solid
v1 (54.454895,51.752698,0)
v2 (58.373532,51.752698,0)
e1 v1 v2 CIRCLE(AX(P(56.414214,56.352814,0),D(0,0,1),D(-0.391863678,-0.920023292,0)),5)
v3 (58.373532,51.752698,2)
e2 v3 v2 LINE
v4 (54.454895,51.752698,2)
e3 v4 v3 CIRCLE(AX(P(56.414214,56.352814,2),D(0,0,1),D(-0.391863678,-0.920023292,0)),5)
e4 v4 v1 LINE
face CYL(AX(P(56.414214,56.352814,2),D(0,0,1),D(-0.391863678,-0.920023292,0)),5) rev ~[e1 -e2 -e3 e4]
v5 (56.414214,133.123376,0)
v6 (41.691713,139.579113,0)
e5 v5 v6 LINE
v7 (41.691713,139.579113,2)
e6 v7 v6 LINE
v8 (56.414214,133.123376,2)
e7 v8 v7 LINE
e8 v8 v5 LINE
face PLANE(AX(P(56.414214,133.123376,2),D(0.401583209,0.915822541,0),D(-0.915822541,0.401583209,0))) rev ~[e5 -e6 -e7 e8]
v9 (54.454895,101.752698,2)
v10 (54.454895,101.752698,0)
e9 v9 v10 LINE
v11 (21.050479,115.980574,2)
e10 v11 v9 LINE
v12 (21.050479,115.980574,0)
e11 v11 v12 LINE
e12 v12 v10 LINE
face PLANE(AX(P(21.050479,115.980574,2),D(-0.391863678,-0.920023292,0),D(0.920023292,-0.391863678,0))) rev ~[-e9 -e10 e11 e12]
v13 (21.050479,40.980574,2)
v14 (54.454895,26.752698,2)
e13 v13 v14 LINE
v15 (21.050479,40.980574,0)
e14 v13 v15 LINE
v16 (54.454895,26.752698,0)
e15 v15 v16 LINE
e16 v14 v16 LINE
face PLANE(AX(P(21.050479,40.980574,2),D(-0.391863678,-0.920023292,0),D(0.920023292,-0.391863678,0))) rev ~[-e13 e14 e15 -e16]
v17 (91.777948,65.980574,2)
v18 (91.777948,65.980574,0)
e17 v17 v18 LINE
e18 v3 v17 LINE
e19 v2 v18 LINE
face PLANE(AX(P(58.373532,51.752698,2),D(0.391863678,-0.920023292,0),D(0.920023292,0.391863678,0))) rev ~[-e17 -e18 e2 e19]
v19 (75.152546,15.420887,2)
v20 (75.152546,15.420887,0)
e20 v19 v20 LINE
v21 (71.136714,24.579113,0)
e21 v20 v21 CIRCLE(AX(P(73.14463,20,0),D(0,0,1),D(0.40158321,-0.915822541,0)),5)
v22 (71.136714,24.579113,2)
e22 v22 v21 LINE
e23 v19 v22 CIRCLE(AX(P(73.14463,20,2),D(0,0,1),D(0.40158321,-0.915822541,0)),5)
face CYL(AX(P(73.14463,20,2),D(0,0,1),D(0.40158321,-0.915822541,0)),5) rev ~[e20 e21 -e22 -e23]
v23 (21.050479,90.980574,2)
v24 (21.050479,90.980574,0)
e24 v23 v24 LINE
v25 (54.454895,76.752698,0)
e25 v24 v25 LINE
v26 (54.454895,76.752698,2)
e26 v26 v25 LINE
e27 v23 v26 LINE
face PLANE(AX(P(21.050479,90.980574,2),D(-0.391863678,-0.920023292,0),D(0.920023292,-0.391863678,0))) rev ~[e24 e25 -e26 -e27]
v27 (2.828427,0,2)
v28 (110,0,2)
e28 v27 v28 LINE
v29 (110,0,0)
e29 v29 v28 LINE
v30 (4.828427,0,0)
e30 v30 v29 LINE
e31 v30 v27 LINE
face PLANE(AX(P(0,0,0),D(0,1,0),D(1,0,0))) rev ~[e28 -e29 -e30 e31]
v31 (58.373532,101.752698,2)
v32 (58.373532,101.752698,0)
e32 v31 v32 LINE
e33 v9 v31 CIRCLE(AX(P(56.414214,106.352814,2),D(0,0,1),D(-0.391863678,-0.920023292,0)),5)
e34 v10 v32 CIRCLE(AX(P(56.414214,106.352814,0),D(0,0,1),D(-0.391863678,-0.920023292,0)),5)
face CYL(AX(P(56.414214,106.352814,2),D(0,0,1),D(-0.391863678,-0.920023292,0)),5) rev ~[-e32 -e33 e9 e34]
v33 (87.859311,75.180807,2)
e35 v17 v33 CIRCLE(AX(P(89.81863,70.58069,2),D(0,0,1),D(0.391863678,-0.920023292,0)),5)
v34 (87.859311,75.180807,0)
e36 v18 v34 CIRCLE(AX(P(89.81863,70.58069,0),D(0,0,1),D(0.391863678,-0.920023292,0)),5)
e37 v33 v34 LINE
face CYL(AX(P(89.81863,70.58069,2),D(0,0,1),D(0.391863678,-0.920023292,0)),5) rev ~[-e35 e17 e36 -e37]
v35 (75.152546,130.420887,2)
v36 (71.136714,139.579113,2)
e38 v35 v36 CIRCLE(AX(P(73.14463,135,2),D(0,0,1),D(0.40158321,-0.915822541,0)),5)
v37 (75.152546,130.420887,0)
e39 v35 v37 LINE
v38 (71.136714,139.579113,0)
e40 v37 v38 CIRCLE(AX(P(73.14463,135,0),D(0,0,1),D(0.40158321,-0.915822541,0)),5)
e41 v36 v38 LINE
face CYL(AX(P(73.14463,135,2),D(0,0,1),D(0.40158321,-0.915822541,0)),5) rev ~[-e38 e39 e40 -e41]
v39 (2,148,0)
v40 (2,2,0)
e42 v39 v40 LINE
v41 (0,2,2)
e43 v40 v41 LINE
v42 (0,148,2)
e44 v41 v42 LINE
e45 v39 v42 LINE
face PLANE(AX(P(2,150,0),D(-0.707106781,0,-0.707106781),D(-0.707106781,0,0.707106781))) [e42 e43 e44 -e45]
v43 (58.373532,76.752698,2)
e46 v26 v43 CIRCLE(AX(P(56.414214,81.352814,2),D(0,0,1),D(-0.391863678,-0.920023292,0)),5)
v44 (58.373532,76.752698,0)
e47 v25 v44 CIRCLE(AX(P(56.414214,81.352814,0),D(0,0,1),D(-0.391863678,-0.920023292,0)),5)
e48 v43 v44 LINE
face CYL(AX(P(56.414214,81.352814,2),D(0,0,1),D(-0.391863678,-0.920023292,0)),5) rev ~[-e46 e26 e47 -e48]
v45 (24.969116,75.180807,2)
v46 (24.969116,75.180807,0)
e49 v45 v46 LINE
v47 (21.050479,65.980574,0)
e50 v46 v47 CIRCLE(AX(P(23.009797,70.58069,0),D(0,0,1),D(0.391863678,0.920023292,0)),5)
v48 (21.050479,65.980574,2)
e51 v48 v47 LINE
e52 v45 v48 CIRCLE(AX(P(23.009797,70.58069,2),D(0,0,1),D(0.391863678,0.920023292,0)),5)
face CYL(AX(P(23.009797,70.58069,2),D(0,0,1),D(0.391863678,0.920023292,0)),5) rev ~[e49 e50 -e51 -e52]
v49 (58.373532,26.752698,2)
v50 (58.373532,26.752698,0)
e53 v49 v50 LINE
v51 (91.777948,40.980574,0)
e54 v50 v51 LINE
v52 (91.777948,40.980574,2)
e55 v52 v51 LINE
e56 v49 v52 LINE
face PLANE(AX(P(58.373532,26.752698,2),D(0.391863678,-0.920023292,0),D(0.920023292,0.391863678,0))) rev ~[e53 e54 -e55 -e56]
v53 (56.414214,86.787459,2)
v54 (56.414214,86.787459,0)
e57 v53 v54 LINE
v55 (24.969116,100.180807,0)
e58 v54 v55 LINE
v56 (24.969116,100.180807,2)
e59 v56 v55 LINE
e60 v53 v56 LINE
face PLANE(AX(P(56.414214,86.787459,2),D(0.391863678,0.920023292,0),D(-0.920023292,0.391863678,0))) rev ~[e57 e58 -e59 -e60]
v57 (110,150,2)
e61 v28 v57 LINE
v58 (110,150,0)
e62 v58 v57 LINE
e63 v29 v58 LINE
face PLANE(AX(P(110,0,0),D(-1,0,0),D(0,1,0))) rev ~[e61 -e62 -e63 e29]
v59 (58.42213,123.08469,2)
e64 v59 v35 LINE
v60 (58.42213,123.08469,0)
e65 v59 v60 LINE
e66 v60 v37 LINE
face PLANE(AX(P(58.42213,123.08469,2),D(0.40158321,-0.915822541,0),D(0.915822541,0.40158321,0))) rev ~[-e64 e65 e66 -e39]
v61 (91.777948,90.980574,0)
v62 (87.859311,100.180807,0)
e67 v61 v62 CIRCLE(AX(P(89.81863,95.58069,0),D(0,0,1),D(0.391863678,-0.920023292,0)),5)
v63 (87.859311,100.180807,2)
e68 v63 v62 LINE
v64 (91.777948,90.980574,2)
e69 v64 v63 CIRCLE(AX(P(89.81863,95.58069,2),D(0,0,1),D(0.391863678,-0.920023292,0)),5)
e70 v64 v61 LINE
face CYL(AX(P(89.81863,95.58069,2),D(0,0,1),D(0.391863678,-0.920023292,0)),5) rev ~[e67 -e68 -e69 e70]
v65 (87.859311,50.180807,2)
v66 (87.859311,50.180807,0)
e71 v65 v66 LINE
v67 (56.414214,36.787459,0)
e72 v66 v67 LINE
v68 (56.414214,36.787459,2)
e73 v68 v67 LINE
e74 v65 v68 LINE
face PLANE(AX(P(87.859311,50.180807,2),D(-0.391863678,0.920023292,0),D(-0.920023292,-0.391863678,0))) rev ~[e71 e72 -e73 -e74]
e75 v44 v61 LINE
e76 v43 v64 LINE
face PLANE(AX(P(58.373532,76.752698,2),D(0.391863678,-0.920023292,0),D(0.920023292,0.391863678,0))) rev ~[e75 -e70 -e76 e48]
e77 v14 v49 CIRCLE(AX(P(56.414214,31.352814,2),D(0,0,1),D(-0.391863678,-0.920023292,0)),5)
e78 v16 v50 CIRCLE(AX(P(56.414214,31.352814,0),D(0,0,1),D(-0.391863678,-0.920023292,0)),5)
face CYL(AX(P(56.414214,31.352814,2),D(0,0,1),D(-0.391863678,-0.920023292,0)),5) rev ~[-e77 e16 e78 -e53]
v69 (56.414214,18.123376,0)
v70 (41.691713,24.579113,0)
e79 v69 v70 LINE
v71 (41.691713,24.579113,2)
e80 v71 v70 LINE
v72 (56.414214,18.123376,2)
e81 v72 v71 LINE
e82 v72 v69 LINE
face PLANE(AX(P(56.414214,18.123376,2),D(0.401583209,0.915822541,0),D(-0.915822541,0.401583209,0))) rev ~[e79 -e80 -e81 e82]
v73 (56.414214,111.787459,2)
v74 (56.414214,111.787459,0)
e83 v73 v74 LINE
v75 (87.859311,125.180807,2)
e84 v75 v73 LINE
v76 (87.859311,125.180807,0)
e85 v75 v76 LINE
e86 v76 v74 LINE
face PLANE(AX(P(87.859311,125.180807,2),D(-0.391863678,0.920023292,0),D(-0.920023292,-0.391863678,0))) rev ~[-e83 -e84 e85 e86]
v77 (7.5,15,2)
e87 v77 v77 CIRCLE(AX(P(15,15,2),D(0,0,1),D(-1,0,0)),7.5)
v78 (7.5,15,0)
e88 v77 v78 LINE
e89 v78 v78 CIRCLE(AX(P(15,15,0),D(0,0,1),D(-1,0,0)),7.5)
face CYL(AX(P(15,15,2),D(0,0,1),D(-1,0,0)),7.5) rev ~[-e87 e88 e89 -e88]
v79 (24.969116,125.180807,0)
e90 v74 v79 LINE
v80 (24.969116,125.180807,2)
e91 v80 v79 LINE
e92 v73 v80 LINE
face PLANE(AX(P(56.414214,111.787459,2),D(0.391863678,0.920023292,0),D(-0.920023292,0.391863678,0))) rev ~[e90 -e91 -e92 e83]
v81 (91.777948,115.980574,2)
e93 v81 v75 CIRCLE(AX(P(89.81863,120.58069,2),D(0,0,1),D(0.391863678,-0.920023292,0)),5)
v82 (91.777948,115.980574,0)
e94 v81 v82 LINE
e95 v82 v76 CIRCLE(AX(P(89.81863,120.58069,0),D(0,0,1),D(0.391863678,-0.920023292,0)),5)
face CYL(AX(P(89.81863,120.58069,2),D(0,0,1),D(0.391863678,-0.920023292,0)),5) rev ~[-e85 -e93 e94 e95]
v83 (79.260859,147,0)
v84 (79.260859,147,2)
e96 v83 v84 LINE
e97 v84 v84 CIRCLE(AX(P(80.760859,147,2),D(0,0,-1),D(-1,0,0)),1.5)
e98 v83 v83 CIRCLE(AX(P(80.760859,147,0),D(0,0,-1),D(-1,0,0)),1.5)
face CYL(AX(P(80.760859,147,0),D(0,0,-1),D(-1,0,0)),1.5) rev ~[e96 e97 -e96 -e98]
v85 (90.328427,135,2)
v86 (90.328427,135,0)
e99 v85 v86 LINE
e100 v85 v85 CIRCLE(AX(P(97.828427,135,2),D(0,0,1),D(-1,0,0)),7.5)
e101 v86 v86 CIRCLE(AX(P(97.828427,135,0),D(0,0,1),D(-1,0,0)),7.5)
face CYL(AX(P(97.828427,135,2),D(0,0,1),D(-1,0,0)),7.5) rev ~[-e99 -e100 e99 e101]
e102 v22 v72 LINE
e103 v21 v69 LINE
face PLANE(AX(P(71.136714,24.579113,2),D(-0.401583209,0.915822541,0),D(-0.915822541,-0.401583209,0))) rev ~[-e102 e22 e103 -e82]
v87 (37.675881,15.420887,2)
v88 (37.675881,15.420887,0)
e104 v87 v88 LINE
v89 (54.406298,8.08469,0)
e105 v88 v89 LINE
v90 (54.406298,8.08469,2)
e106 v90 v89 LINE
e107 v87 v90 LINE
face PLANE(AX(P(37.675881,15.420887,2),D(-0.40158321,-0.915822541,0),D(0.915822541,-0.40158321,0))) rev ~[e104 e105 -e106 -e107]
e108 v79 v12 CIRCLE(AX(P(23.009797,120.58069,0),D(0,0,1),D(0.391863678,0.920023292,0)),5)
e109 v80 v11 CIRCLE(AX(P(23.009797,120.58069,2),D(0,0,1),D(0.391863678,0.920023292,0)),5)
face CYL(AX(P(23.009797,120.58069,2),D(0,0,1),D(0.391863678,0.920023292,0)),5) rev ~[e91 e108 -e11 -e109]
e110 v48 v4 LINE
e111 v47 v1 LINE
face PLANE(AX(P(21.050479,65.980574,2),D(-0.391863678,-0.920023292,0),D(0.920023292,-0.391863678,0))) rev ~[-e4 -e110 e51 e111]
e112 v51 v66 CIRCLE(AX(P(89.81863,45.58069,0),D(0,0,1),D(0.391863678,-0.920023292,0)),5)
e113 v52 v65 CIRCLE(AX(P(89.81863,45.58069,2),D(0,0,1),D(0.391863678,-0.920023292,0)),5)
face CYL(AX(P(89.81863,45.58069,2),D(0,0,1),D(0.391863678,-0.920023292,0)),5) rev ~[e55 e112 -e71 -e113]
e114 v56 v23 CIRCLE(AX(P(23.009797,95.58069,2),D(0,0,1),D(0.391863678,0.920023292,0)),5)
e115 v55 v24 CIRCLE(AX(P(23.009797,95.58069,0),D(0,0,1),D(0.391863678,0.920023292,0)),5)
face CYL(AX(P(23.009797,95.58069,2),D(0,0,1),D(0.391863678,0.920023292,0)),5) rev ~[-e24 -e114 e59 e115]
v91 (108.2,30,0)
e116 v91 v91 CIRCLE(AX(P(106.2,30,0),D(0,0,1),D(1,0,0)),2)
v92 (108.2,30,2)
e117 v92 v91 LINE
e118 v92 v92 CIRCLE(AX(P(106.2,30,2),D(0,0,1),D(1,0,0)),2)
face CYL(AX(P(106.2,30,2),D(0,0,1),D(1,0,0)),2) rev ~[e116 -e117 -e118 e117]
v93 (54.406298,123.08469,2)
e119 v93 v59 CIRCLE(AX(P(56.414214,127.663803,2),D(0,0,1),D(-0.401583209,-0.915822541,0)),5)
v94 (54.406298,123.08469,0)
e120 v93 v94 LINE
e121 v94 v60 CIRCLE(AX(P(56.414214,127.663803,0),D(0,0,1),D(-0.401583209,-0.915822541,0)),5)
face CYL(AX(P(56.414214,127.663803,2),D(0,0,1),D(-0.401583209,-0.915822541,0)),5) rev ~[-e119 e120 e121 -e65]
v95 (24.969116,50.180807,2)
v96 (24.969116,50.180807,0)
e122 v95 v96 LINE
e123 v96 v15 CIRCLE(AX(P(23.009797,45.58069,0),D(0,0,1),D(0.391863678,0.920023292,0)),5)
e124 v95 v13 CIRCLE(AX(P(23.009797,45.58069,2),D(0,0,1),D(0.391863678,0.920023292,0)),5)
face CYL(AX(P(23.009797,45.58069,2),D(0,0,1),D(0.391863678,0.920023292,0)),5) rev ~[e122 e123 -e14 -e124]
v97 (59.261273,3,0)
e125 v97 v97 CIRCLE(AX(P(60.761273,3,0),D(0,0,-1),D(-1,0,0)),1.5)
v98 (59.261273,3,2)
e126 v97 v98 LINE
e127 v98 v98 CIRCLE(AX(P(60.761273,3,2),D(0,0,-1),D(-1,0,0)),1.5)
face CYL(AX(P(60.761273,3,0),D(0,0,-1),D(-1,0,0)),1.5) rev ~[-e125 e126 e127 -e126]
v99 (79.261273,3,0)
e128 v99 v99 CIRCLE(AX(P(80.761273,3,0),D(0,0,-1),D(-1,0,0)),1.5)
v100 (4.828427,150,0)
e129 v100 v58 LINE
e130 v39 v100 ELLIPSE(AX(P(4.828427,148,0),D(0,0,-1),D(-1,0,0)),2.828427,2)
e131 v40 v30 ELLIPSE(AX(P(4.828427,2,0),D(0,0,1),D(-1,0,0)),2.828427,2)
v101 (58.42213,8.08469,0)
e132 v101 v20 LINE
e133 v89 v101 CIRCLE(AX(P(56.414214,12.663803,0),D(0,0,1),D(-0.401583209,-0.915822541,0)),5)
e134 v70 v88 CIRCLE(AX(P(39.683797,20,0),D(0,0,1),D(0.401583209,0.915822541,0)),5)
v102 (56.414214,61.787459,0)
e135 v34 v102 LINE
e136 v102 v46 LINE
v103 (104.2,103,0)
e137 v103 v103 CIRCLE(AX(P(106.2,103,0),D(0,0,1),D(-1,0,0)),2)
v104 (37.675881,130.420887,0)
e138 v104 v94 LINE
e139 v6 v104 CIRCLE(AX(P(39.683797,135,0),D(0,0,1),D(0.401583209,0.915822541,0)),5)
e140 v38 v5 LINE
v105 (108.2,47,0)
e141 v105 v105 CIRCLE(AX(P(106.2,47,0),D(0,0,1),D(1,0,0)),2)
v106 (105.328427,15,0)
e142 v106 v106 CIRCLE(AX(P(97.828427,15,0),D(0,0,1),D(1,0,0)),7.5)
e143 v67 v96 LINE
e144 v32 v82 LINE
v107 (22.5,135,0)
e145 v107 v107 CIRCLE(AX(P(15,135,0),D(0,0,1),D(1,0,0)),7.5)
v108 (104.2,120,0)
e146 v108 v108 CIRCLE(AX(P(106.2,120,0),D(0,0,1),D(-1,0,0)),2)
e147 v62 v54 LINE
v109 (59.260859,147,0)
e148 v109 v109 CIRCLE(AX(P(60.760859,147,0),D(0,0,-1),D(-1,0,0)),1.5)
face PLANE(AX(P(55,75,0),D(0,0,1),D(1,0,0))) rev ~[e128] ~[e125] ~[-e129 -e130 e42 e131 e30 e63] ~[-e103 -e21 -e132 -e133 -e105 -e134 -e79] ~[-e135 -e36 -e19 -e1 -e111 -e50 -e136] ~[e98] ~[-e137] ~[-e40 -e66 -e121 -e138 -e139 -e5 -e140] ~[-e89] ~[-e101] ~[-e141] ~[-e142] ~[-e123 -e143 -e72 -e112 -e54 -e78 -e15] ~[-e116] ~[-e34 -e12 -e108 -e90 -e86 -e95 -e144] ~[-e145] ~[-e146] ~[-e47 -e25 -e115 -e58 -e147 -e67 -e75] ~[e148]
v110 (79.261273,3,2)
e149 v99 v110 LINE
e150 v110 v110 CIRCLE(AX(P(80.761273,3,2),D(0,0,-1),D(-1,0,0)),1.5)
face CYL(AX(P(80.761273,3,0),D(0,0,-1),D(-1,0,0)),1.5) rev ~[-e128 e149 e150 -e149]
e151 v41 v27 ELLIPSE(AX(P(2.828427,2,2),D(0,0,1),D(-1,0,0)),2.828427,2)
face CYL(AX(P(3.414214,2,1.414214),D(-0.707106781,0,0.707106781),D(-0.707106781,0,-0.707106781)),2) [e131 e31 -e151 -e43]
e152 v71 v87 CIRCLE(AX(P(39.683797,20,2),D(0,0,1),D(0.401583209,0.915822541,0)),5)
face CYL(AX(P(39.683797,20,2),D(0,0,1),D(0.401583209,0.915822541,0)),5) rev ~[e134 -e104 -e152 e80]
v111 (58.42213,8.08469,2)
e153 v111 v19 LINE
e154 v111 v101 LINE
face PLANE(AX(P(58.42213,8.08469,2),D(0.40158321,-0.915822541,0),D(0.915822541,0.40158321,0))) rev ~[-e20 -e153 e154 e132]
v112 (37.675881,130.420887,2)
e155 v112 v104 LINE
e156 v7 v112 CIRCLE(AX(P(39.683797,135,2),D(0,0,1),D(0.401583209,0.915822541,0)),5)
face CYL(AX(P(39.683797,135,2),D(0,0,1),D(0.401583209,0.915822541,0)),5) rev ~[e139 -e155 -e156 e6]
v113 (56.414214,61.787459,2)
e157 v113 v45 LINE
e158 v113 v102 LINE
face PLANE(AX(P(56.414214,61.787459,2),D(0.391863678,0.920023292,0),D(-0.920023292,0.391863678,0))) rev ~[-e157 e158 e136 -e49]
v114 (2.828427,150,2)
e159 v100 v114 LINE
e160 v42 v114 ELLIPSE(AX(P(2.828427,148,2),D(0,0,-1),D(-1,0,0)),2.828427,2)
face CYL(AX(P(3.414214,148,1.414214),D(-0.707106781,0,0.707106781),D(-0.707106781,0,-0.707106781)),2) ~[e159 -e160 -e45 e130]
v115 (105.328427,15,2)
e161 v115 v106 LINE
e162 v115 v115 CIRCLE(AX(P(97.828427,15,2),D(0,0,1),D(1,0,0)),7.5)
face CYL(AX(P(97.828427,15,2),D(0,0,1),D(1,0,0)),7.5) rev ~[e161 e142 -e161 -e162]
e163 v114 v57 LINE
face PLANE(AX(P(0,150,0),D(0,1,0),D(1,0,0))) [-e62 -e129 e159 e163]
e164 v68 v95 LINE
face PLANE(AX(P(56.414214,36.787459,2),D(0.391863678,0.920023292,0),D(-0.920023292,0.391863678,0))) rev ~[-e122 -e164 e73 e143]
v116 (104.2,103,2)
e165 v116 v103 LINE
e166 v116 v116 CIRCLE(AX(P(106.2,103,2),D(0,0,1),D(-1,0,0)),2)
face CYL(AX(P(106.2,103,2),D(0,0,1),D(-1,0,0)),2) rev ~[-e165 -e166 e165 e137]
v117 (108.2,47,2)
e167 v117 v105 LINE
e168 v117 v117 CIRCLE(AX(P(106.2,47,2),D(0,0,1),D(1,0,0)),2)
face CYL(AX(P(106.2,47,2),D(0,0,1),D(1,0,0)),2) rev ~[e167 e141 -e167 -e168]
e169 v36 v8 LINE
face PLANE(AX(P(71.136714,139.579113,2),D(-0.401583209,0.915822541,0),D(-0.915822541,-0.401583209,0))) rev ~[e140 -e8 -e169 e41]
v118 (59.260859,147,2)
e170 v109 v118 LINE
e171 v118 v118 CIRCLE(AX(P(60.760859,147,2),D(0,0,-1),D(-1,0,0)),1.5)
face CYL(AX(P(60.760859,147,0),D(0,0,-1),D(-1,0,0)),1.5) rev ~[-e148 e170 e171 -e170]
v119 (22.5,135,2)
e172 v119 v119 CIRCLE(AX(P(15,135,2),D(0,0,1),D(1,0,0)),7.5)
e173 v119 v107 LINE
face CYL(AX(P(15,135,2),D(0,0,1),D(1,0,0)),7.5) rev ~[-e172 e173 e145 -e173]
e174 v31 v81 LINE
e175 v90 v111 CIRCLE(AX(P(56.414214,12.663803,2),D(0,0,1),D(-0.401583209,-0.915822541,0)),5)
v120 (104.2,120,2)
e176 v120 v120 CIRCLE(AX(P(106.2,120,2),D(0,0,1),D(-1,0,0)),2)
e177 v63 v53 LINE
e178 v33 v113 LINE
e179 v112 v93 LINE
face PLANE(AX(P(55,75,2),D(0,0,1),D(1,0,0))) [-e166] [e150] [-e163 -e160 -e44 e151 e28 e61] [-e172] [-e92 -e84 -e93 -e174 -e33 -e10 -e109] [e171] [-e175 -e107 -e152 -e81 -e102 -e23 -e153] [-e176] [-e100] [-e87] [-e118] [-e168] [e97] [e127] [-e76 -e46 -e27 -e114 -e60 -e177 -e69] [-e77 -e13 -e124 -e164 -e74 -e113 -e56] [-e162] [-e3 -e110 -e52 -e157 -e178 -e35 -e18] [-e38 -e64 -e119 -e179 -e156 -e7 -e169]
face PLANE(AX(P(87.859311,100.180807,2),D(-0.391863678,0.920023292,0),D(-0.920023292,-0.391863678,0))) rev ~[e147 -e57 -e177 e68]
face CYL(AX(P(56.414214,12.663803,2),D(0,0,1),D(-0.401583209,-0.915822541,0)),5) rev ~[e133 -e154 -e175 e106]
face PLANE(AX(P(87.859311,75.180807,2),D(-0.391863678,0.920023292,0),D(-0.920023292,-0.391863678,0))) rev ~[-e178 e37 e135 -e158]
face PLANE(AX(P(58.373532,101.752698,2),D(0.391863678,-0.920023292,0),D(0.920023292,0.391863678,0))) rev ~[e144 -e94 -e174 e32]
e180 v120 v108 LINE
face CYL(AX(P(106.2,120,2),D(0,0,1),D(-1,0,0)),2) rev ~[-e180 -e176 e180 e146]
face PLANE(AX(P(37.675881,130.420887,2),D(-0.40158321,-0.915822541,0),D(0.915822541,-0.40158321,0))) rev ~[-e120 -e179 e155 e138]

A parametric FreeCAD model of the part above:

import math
import FreeCAD as App
import Part
import Sketcher
from FreeCAD import Vector
Q = App.Units.Quantity


def edges_at(feature, points):
    """Names of the edges that pass closest to the given points."""
    edges = feature.Shape.Edges
    near = lambda p: min(range(len(edges)), key=lambda i: edges[i].distToShape(Part.Vertex(*p))[0])
    return sorted({f"Edge{near(p) + 1}" for p in points})

doc = App.newDocument("Part")
body = doc.addObject("PartDesign::Body", "Body")

sketch1 = body.newObject("Sketcher::SketchObject", "Sketch")
sketch1.AttachmentSupport = (doc.getObject("XY_Plane"), [""])
sketch1.MapMode = "FlatFace"
sketch1.addGeometry([
    Part.LineSegment(Vector(0, 150, 0), Vector(0, 0, 0)),
    Part.LineSegment(Vector(0, 0, 0), Vector(110, 0, 0)),
    Part.LineSegment(Vector(110, 0, 0), Vector(110, 150, 0)),
    Part.LineSegment(Vector(110, 150, 0), Vector(0, 150, 0)),
], False)
sketch1.addConstraint([
    Sketcher.Constraint("Coincident", 0, 2, 1, 1),
    Sketcher.Constraint("Coincident", 1, 2, 2, 1),
    Sketcher.Constraint("Coincident", 2, 2, 3, 1),
    Sketcher.Constraint("Coincident", 3, 2, 0, 1),
    Sketcher.Constraint("Vertical", 0),
    Sketcher.Constraint("Horizontal", 1),
    Sketcher.Constraint("Vertical", 2),
    Sketcher.Constraint("Horizontal", 3),
    Sketcher.Constraint("Coincident", 0, 2, -1, 1),
    Sketcher.Constraint("DistanceX", 1, 1, 1, 2, Q("110 mm")),
    Sketcher.Constraint("DistanceY", 0, 2, 0, 1, Q("150 mm")),
])
pad1 = body.newObject("PartDesign::Pad", "Pad")
pad1.Profile = sketch1
pad1.Length = 2

sketch2 = body.newObject("Sketcher::SketchObject", "Sketch001")
sketch2.AttachmentSupport = (doc.getObject("XZ_Plane"), [""])
sketch2.MapMode = "FlatFace"
sketch2.AttachmentOffset = App.Placement(Vector(0, 0, -150), App.Rotation())
sketch2.addGeometry([
    Part.LineSegment(Vector(0, 0, 0), Vector(0, 2, 0)),
    Part.LineSegment(Vector(0, 2, 0), Vector(2, 0, 0)),
    Part.LineSegment(Vector(2, 0, 0), Vector(0, 0, 0)),
], False)
sketch2.addConstraint([
    Sketcher.Constraint("Coincident", 0, 2, 1, 1),
    Sketcher.Constraint("Coincident", 1, 2, 2, 1),
    Sketcher.Constraint("Coincident", 2, 2, 0, 1),
    Sketcher.Constraint("Vertical", 0),
    Sketcher.Constraint("Horizontal", 2),
    Sketcher.Constraint("Coincident", 2, 2, -1, 1),
    Sketcher.Constraint("Equal", 2, 0),
    Sketcher.Constraint("DistanceX", 2, 2, 2, 1, Q("2 mm")),
])
pocket1 = body.newObject("PartDesign::Pocket", "Pocket")
pocket1.Profile = sketch2
pocket1.Type = "ThroughAll"
pocket1.Reversed = True
doc.recompute()

fillet = body.newObject("PartDesign::Fillet", "Fillet")
fillet.Base = (pocket1, edges_at(pocket1, [(1, 150, 1)]))
fillet.Radius = 2
doc.recompute()

fillet2 = body.newObject("PartDesign::Fillet", "Fillet001")
fillet2.Base = (fillet, edges_at(fillet, [(1, 0, 1)]))
fillet2.Radius = 2

sketch3 = body.newObject("Sketcher::SketchObject", "Sketch002")
sketch3.AttachmentSupport = (doc.getObject("XY_Plane"), [""])
sketch3.MapMode = "FlatFace"
sketch3.AttachmentOffset = App.Placement(Vector(0, 0, 2), App.Rotation())
sketch3.addGeometry([
    Part.Circle(Vector(106.2, 47, 0), Vector(0, 0, 1), 2),
    Part.Circle(Vector(106.2, 30, 0), Vector(0, 0, 1), 2),
    Part.Circle(Vector(106.2, 120, 0), Vector(0, 0, 1), 2),
    Part.Circle(Vector(106.2, 103, 0), Vector(0, 0, 1), 2),
], False)
sketch3.addConstraint([
    Sketcher.Constraint("Equal", 0, 1),
    Sketcher.Constraint("Equal", 1, 2),
    Sketcher.Constraint("Equal", 2, 3),
    Sketcher.Constraint("Vertical", 0, 3, 1, 3),
    Sketcher.Constraint("Vertical", 1, 3, 2, 3),
    Sketcher.Constraint("Vertical", 2, 3, 3, 3),
    Sketcher.Constraint("Diameter", 0, Q("4 mm")),
    Sketcher.Constraint("DistanceY", -1, 1, 0, 3, Q("47 mm")),
    Sketcher.Constraint("DistanceY", -1, 1, 1, 3, Q("30 mm")),
    Sketcher.Constraint("DistanceY", -1, 1, 2, 3, Q("120 mm")),
    Sketcher.Constraint("DistanceY", -1, 1, 3, 3, Q("103 mm")),
    Sketcher.Constraint("DistanceX", -1, 1, 0, 3, Q("106.2 mm")),
])
pocket2 = body.newObject("PartDesign::Pocket", "Pocket001")
pocket2.Profile = sketch3
pocket2.Type = "ThroughAll"

sketch4 = body.newObject("Sketcher::SketchObject", "Sketch003")
sketch4.AttachmentSupport = (doc.getObject("XY_Plane"), [""])
sketch4.MapMode = "FlatFace"
sketch4.addGeometry([
    Part.Circle(Vector(60.8, 147, 0), Vector(0, 0, 1), 1.5),
    Part.Circle(Vector(80.8, 147, 0), Vector(0, 0, 1), 1.5),
], False)
sketch4.addConstraint([
    Sketcher.Constraint("Equal", 0, 1),
    Sketcher.Constraint("Horizontal", 0, 3, 1, 3),
    Sketcher.Constraint("Diameter", 0, Q("3 mm")),
    Sketcher.Constraint("DistanceY", -1, 1, 0, 3, Q("147 mm")),
    Sketcher.Constraint("DistanceX", 0, 3, 1, 3, Q("20 mm")),
    Sketcher.Constraint("DistanceX", -1, 1, 0, 3, Q("60.760859 mm")),
])
pocket3 = body.newObject("PartDesign::Pocket", "Pocket002")
pocket3.Profile = sketch4
pocket3.Type = "ThroughAll"
pocket3.Reversed = True

sketch5 = body.newObject("Sketcher::SketchObject", "Sketch004")
sketch5.AttachmentSupport = (doc.getObject("XY_Plane"), [""])
sketch5.MapMode = "FlatFace"
sketch5.addGeometry([
    Part.Circle(Vector(80.8, 3, 0), Vector(0, 0, 1), 1.5),
    Part.Circle(Vector(60.8, 3, 0), Vector(0, 0, 1), 1.5),
], False)
sketch5.addConstraint([
    Sketcher.Constraint("Equal", 0, 1),
    Sketcher.Constraint("Horizontal", 0, 3, 1, 3),
    Sketcher.Constraint("Diameter", 0, Q("3 mm")),
    Sketcher.Constraint("DistanceY", -1, 1, 0, 3, Q("3 mm")),
    Sketcher.Constraint("DistanceX", 1, 3, 0, 3, Q("20 mm")),
    Sketcher.Constraint("DistanceX", -1, 1, 0, 3, Q("80.761273 mm")),
])
pocket4 = body.newObject("PartDesign::Pocket", "Pocket003")
pocket4.Profile = sketch5
pocket4.Type = "ThroughAll"
pocket4.Reversed = True

sketch6 = body.newObject("Sketcher::SketchObject", "Sketch005")
sketch6.AttachmentSupport = (doc.getObject("XY_Plane"), [""])
sketch6.MapMode = "FlatFace"
sketch6.AttachmentOffset = App.Placement(Vector(0, 0, 2), App.Rotation())
sketch6.addGeometry([
    Part.Circle(Vector(15, 135, 0), Vector(0, 0, 1), 8),
    Part.Circle(Vector(15, 15, 0), Vector(0, 0, 1), 8),
    Part.Circle(Vector(98, 15, 0), Vector(0, 0, 1), 8),
    Part.Circle(Vector(98, 135, 0), Vector(0, 0, 1), 8),
], False)
sketch6.addConstraint([
    Sketcher.Constraint("Equal", 0, 1),
    Sketcher.Constraint("Equal", 1, 2),
    Sketcher.Constraint("Equal", 2, 3),
    Sketcher.Constraint("Horizontal", 1, 3, 2, 3),
    Sketcher.Constraint("Horizontal", 0, 3, 3, 3),
    Sketcher.Constraint("Vertical", 0, 3, 1, 3),
    Sketcher.Constraint("Vertical", 2, 3, 3, 3),
    Sketcher.Constraint("Diameter", 0, Q("15 mm")),
    Sketcher.Constraint("DistanceX", -1, 1, 0, 3, Q("15 mm")),
    Sketcher.Constraint("DistanceY", -1, 1, 0, 3, Q("135 mm")),
    Sketcher.Constraint("DistanceY", -1, 1, 1, 3, Q("15 mm")),
    Sketcher.Constraint("DistanceX", -1, 1, 2, 3, Q("97.828427 mm")),
])
pocket5 = body.newObject("PartDesign::Pocket", "Pocket004")
pocket5.Profile = sketch6
pocket5.Length = 10

sketch7 = body.newObject("Sketcher::SketchObject", "Sketch006")
sketch7.AttachmentSupport = (doc.getObject("XY_Plane"), [""])
sketch7.MapMode = "FlatFace"
sketch7.AttachmentOffset = App.Placement(Vector(0, 0, 2), App.Rotation())
sketch7.addGeometry([
    Part.LineSegment(Vector(56.4, 133.1, 0), Vector(41.7, 139.6, 0)),
    Part.ArcOfCircle(Part.Circle(Vector(39.7, 135, 0), Vector(0, 0, 1), 5), math.radians(66), math.radians(246)),
    Part.LineSegment(Vector(37.7, 130.4, 0), Vector(54.4, 123.1, 0)),
    Part.ArcOfCircle(Part.Circle(Vector(56.4, 127.7, 0), Vector(0, 0, 1), 5), math.radians(-114), math.radians(-66)),
    Part.LineSegment(Vector(58.4, 123.1, 0), Vector(75.2, 130.4, 0)),
    Part.ArcOfCircle(Part.Circle(Vector(73.1, 135, 0), Vector(0, 0, 1), 5), math.radians(-66), math.radians(114)),
    Part.LineSegment(Vector(71.1, 139.6, 0), Vector(56.4, 133.1, 0)),
    Part.LineSegment(Vector(87.9, 125.2, 0), Vector(56.4, 111.8, 0)),
    Part.LineSegment(Vector(56.4, 111.8, 0), Vector(25, 125.2, 0)),
    Part.ArcOfCircle(Part.Circle(Vector(23, 120.6, 0), Vector(0, 0, 1), 5), math.radians(67), math.radians(247)),
    Part.LineSegment(Vector(21.1, 116, 0), Vector(54.5, 101.8, 0)),
    Part.ArcOfCircle(Part.Circle(Vector(56.4, 106.4, 0), Vector(0, 0, 1), 5), math.radians(-113), math.radians(-67)),
    Part.LineSegment(Vector(58.4, 101.8, 0), Vector(91.8, 116, 0)),
    Part.ArcOfCircle(Part.Circle(Vector(89.8, 120.6, 0), Vector(0, 0, 1), 5), math.radians(-67), math.radians(113)),
    Part.ArcOfCircle(Part.Circle(Vector(23, 95.6, 0), Vector(0, 0, 1), 5), math.radians(67), math.radians(247)),
    Part.LineSegment(Vector(21.1, 91, 0), Vector(54.5, 76.8, 0)),
    Part.ArcOfCircle(Part.Circle(Vector(56.4, 81.4, 0), Vector(0, 0, 1), 5), math.radians(-113), math.radians(-67)),
    Part.LineSegment(Vector(58.4, 76.8, 0), Vector(91.8, 91, 0)),
    Part.ArcOfCircle(Part.Circle(Vector(89.8, 95.6, 0), Vector(0, 0, 1), 5), math.radians(-67), math.radians(113)),
    Part.LineSegment(Vector(87.9, 100.2, 0), Vector(56.4, 86.8, 0)),
    Part.LineSegment(Vector(56.4, 86.8, 0), Vector(25, 100.2, 0)),
    Part.LineSegment(Vector(58.4, 51.8, 0), Vector(91.8, 66, 0)),
    Part.ArcOfCircle(Part.Circle(Vector(89.8, 70.6, 0), Vector(0, 0, 1), 5), math.radians(-67), math.radians(113)),
    Part.LineSegment(Vector(87.9, 75.2, 0), Vector(56.4, 61.8, 0)),
    Part.LineSegment(Vector(56.4, 61.8, 0), Vector(25, 75.2, 0)),
    Part.ArcOfCircle(Part.Circle(Vector(23, 70.6, 0), Vector(0, 0, 1), 5), math.radians(67), math.radians(247)),
    Part.LineSegment(Vector(21.1, 66, 0), Vector(54.5, 51.8, 0)),
    Part.ArcOfCircle(Part.Circle(Vector(56.4, 56.4, 0), Vector(0, 0, 1), 5), math.radians(-113), math.radians(-67)),
    Part.ArcOfCircle(Part.Circle(Vector(23, 45.6, 0), Vector(0, 0, 1), 5), math.radians(67), math.radians(247)),
    Part.LineSegment(Vector(21.1, 41, 0), Vector(54.5, 26.8, 0)),
    Part.ArcOfCircle(Part.Circle(Vector(56.4, 31.4, 0), Vector(0, 0, 1), 5), math.radians(-113), math.radians(-67)),
    Part.LineSegment(Vector(58.4, 26.8, 0), Vector(91.8, 41, 0)),
    Part.ArcOfCircle(Part.Circle(Vector(89.8, 45.6, 0), Vector(0, 0, 1), 5), math.radians(-67), math.radians(113)),
    Part.LineSegment(Vector(87.9, 50.2, 0), Vector(56.4, 36.8, 0)),
    Part.LineSegment(Vector(56.4, 36.8, 0), Vector(25, 50.2, 0)),
    Part.LineSegment(Vector(58.4, 8.1, 0), Vector(75.2, 15.4, 0)),
    Part.ArcOfCircle(Part.Circle(Vector(73.1, 20, 0), Vector(0, 0, 1), 5), math.radians(-66), math.radians(114)),
    Part.LineSegment(Vector(71.1, 24.6, 0), Vector(56.4, 18.1, 0)),
    Part.LineSegment(Vector(56.4, 18.1, 0), Vector(41.7, 24.6, 0)),
    Part.ArcOfCircle(Part.Circle(Vector(39.7, 20, 0), Vector(0, 0, 1), 5), math.radians(66), math.radians(246)),
    Part.LineSegment(Vector(37.7, 15.4, 0), Vector(54.4, 8.1, 0)),
    Part.ArcOfCircle(Part.Circle(Vector(56.4, 12.7, 0), Vector(0, 0, 1), 5), math.radians(-114), math.radians(-66)),
], False)
sketch7.addConstraint([
    Sketcher.Constraint("Tangent", 0, 2, 1, 1),
    Sketcher.Constraint("Tangent", 1, 2, 2, 1),
    Sketcher.Constraint("Tangent", 2, 2, 3, 1),
    Sketcher.Constraint("Tangent", 3, 2, 4, 1),
    Sketcher.Constraint("Tangent", 4, 2, 5, 1),
    Sketcher.Constraint("Tangent", 5, 2, 6, 1),
    Sketcher.Constraint("Coincident", 6, 2, 0, 1),
    Sketcher.Constraint("Coincident", 7, 2, 8, 1),
    Sketcher.Constraint("Tangent", 8, 2, 9, 1),
    Sketcher.Constraint("Tangent", 9, 2, 10, 1),
    Sketcher.Constraint("Tangent", 10, 2, 11, 1),
    Sketcher.Constraint("Tangent", 11, 2, 12, 1),
    Sketcher.Constraint("Tangent", 12, 2, 13, 1),
    Sketcher.Constraint("Tangent", 13, 2, 7, 1),
    Sketcher.Constraint("Tangent", 14, 2, 15, 1),
    Sketcher.Constraint("Tangent", 15, 2, 16, 1),
    Sketcher.Constraint("Tangent", 16, 2, 17, 1),
    Sketcher.Constraint("Tangent", 17, 2, 18, 1),
    Sketcher.Constraint("Tangent", 18, 2, 19, 1),
    Sketcher.Constraint("Coincident", 19, 2, 20, 1),
    Sketcher.Constraint("Tangent", 20, 2, 14, 1),
    Sketcher.Constraint("Tangent", 21, 2, 22, 1),
    Sketcher.Constraint("Tangent", 22, 2, 23, 1),
    Sketcher.Constraint("Coincident", 23, 2, 24, 1),
    Sketcher.Constraint("Tangent", 24, 2, 25, 1),
    Sketcher.Constraint("Tangent", 25, 2, 26, 1),
    Sketcher.Constraint("Tangent", 26, 2, 27, 1),
    Sketcher.Constraint("Tangent", 27, 2, 21, 1),
    Sketcher.Constraint("Tangent", 28, 2, 29, 1),
    Sketcher.Constraint("Tangent", 29, 2, 30, 1),
    Sketcher.Constraint("Tangent", 30, 2, 31, 1),
    Sketcher.Constraint("Tangent", 31, 2, 32, 1),
    Sketcher.Constraint("Tangent", 32, 2, 33, 1),
    Sketcher.Constraint("Coincident", 33, 2, 34, 1),
    Sketcher.Constraint("Tangent", 34, 2, 28, 1),
    Sketcher.Constraint("Tangent", 35, 2, 36, 1),
    Sketcher.Constraint("Tangent", 36, 2, 37, 1),
    Sketcher.Constraint("Coincident", 37, 2, 38, 1),
    Sketcher.Constraint("Tangent", 38, 2, 39, 1),
    Sketcher.Constraint("Tangent", 39, 2, 40, 1),
    Sketcher.Constraint("Tangent", 40, 2, 41, 1),
    Sketcher.Constraint("Tangent", 41, 2, 35, 1),
    Sketcher.Constraint("Equal", 1, 3),
    Sketcher.Constraint("Equal", 3, 5),
    Sketcher.Constraint("Equal", 5, 9),
    Sketcher.Constraint("Equal", 9, 11),
    Sketcher.Constraint("Equal", 11, 13),
    Sketcher.Constraint("Equal", 13, 14),
    Sketcher.Constraint("Equal", 14, 16),
    Sketcher.Constraint("Equal", 16, 18),
    Sketcher.Constraint("Equal", 18, 22),
    Sketcher.Constraint("Equal", 22, 25),
    Sketcher.Constraint("Equal", 25, 27),
    Sketcher.Constraint("Equal", 27, 28),
    Sketcher.Constraint("Equal", 28, 30),
    Sketcher.Constraint("Equal", 30, 32),
    Sketcher.Constraint("Equal", 32, 36),
    Sketcher.Constraint("Equal", 36, 39),
    Sketcher.Constraint("Equal", 39, 41),
    Sketcher.Constraint("Parallel", 0, 2),
    Sketcher.Constraint("Parallel", 4, 6),
    Sketcher.Constraint("Parallel", 8, 10),
    Sketcher.Constraint("Parallel", 7, 12),
    Sketcher.Constraint("Parallel", 10, 15),
    Sketcher.Constraint("Parallel", 12, 17),
    Sketcher.Constraint("Parallel", 17, 19),
    Sketcher.Constraint("Parallel", 15, 20),
    Sketcher.Constraint("Parallel", 19, 21),
    Sketcher.Constraint("Parallel", 21, 23),
    Sketcher.Constraint("Parallel", 20, 24),
    Sketcher.Constraint("Parallel", 24, 26),
    Sketcher.Constraint("Parallel", 26, 29),
    Sketcher.Constraint("Parallel", 23, 31),
    Sketcher.Constraint("Parallel", 31, 33),
    Sketcher.Constraint("Parallel", 29, 34),
    Sketcher.Constraint("Parallel", 6, 35),
    Sketcher.Constraint("Parallel", 35, 37),
    Sketcher.Constraint("Parallel", 2, 38),
    Sketcher.Constraint("Parallel", 38, 40),
    Sketcher.Constraint("Horizontal", 1, 3, 5, 3),
    Sketcher.Constraint("Horizontal", 9, 3, 13, 3),
    Sketcher.Constraint("Horizontal", 14, 3, 18, 3),
    Sketcher.Constraint("Horizontal", 22, 3, 25, 3),
    Sketcher.Constraint("Horizontal", 28, 3, 32, 3),
    Sketcher.Constraint("Horizontal", 36, 3, 39, 3),
    Sketcher.Constraint("Horizontal", 2, 2, 3, 2),
    Sketcher.Constraint("Horizontal", 10, 2, 11, 2),
    Sketcher.Constraint("Vertical", 3, 3, 11, 3),
    Sketcher.Constraint("Vertical", 9, 3, 14, 3),
    Sketcher.Constraint("Vertical", 11, 3, 16, 3),
    Sketcher.Constraint("Vertical", 18, 3, 22, 3),
    Sketcher.Constraint("Vertical", 14, 3, 25, 3),
    Sketcher.Constraint("Vertical", 25, 3, 28, 3),
    Sketcher.Constraint("Vertical", 27, 3, 30, 3),
    Sketcher.Constraint("Vertical", 5, 3, 36, 3),
    Sketcher.Constraint("Vertical", 1, 3, 39, 3),
    Sketcher.Constraint("Radius", 1, Q("5 mm")),
    Sketcher.Constraint("DistanceY", -1, 1, 1, 3, Q("135 mm")),
    Sketcher.Constraint("DistanceY", -1, 1, 36, 3, Q("20 mm")),
    Sketcher.Constraint("DistanceY", 14, 3, 9, 3, Q("25 mm")),
    Sketcher.Constraint("DistanceY", 22, 3, 18, 3, Q("25 mm")),
    Sketcher.Constraint("DistanceY", 28, 3, 25, 3, Q("25 mm")),
    Sketcher.Constraint("DistanceX", 9, 3, 1, 3, Q("16.673999 mm")),
    Sketcher.Constraint("DistanceX", 0, 2, 3, 3, Q("14.722501 mm")),
    Sketcher.Constraint("DistanceY", 11, 3, 0, 2, Q("33.226298 mm")),
    Sketcher.Constraint("DistanceX", 9, 2, 1, 2, Q("16.625402 mm")),
    Sketcher.Constraint("Distance", 7, Q("34.178589 mm")),
    Sketcher.Constraint("DistanceX", -1, 1, 5, 3, Q("73.14463 mm")),
])
pocket6 = body.newObject("PartDesign::Pocket", "Pocket005")
pocket6.Profile = sketch7
pocket6.Length = 10

doc.recompute()
